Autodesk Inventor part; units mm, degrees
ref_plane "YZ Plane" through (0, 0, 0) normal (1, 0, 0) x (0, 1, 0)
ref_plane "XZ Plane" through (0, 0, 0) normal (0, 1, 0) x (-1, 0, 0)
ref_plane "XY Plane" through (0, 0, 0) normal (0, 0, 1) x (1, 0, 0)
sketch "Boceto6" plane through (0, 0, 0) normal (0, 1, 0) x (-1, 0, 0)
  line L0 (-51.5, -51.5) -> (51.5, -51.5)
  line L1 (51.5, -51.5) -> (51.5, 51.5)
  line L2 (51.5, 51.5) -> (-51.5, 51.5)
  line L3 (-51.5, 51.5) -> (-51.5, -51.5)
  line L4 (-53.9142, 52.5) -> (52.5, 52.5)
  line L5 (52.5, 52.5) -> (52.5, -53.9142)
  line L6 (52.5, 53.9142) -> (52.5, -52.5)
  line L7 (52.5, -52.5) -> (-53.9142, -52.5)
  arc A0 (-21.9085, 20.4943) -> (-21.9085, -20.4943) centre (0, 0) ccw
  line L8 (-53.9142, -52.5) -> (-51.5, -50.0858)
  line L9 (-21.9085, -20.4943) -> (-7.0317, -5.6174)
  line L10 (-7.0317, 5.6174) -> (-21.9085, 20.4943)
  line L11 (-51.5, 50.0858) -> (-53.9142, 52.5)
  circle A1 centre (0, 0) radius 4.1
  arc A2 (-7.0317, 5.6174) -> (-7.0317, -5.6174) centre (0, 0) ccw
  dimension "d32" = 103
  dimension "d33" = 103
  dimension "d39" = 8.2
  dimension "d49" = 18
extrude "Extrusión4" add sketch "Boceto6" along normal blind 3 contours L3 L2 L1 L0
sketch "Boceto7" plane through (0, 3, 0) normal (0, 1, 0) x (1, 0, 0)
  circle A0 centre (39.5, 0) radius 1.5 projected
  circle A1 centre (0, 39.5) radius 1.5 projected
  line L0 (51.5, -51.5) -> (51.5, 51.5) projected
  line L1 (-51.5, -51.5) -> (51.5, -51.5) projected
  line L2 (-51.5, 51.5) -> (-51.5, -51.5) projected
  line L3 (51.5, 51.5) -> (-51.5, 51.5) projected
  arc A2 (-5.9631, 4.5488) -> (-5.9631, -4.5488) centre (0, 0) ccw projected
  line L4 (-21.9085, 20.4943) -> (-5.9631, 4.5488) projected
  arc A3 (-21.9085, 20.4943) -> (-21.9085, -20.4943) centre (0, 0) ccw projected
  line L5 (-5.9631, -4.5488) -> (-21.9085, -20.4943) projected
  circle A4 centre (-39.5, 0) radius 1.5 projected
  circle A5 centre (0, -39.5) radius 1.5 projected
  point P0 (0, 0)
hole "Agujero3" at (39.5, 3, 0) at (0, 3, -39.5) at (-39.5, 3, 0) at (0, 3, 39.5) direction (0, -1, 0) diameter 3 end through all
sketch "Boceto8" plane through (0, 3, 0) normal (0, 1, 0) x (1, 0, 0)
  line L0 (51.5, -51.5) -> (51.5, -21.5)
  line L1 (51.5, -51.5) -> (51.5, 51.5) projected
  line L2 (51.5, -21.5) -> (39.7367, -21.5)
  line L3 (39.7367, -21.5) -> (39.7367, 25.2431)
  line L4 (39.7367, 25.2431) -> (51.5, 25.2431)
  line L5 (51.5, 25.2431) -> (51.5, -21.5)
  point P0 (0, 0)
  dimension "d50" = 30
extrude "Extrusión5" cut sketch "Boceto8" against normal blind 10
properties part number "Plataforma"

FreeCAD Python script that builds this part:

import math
import FreeCAD as App
import Part
import Sketcher
from FreeCAD import Vector
Q = App.Units.Quantity


def add_polygon(sketch, points):
    """Adds a closed chain of lines whose ends are joined by coincident constraints."""
    first, n = sketch.GeometryCount, len(points)
    for a, b in zip(points, points[1:] + points[:1]):
        sketch.addGeometry(Part.LineSegment(App.Vector(*a, 0), App.Vector(*b, 0)), False)
    for i in range(n):
        sketch.addConstraint(Sketcher.Constraint("Coincident", first + i, 2, first + (i + 1) % n, 1))

doc = App.newDocument("Part")
params = doc.addObject("Spreadsheet::Sheet", "Params")
for row, (alias, value) in enumerate([
    ("sketch1_radius", "9 mm"),
    ("sketch1_diameter", "8.2 mm"),
    ("sketch1_width", "103 mm"),
    ("sketch1_radius2", "30 mm"),
    ("pad1_length", "3 mm"),
    ("sketch2_diameter", "3 mm"),
    ("hole_diameter", "3 mm"),
    ("pocket1_length", "10 mm"),
], start=1):
    params.set(f"A{row}", alias)
    params.set(f"B{row}", "=" + value)
    params.setAlias(f"B{row}", alias)

body = doc.addObject("PartDesign::Body", "Body")

# Sketch on XZ plane
sketch1 = body.newObject("Sketcher::SketchObject", "Sketch")
sketch1.AttachmentSupport = (doc.getObject("XZ_Plane"), [""])
sketch1.MapMode = "FlatFace"
add_polygon(sketch1, [(51.5, 51.5), (51.5, -51.5), (-51.5, -51.5), (-51.5, 51.5)])  # lines 0-3
sketch1.addGeometry(Part.ArcOfCircle(Part.Circle(Vector(0, 0, 0), Vector(0, 0, 1), 30), math.radians(-43), math.radians(43)), False)  # 4
sketch1.addGeometry(Part.LineSegment(Vector(21.9, 20.5, 0), Vector(7, 5.6, 0)), False)  # 5
sketch1.addGeometry(Part.ArcOfCircle(Part.Circle(Vector(0, 0, 0), Vector(0, 0, 1), 9), math.radians(-39), math.radians(39)), False)  # 6
sketch1.addGeometry(Part.LineSegment(Vector(7, -5.6, 0), Vector(21.9, -20.5, 0)), False)  # 7
sketch1.addGeometry(Part.Circle(Vector(0, 0, 0), Vector(0, 0, 1), 4.1), False)  # 8
sketch1.addConstraint([
    Sketcher.Constraint("Coincident", 4, 2, 5, 1),
    Sketcher.Constraint("Coincident", 5, 2, 6, 2),
    Sketcher.Constraint("Coincident", 6, 1, 7, 1),
    Sketcher.Constraint("Coincident", 7, 2, 4, 1),
    Sketcher.Constraint("Vertical", 0),
    Sketcher.Constraint("Horizontal", 1),
    Sketcher.Constraint("Vertical", 2),
    Sketcher.Constraint("Horizontal", 3),
    Sketcher.Constraint("Coincident", 4, 3, -1, 1),
    Sketcher.Constraint("Coincident", 6, 3, -1, 1),
    Sketcher.Constraint("Coincident", 8, 3, -1, 1),
    Sketcher.Constraint("Symmetric", 0, 2, 2, 2, -1, 1),
    Sketcher.Constraint("Perpendicular", 5, 7),
    Sketcher.Constraint("Vertical", 5, 2, 6, 1),
    Sketcher.Constraint("Vertical", 4, 2, 7, 2),
    Sketcher.Constraint("Equal", 3, 0),
    Sketcher.Constraint("Radius", 6, Q("9 mm")),
    Sketcher.Constraint("Diameter", 8, Q("8.2 mm")),
    Sketcher.Constraint("DistanceX", 1, 2, 1, 1, Q("103 mm")),
    Sketcher.Constraint("Radius", 4, Q("30 mm")),
    Sketcher.Constraint("Distance", 5, Q("21.039 mm")),
])
sketch1.setExpression("Constraints[20]", "Params.sketch1_radius")
sketch1.setExpression("Constraints[21]", "Params.sketch1_diameter")
sketch1.setExpression("Constraints[22]", "Params.sketch1_width")
sketch1.setExpression("Constraints[23]", "Params.sketch1_radius2")
pad1 = body.newObject("PartDesign::Pad", "Pad")
pad1.Profile = sketch1
pad1.setExpression("Length", "Params.pad1_length")
pad1.Reversed = True

# Sketch on XZ plane
sketch2 = body.newObject("Sketcher::SketchObject", "Sketch001")
sketch2.AttachmentSupport = (doc.getObject("XZ_Plane"), [""])
sketch2.MapMode = "FlatFace"
sketch2.AttachmentOffset = App.Placement(Vector(0, 0, -3), App.Rotation())
sketch2.addGeometry([
    Part.Circle(Vector(39.5, 0, 0), Vector(0, 0, 1), 1.5),
    Part.Circle(Vector(0, -39.5, 0), Vector(0, 0, 1), 1.5),
    Part.Circle(Vector(-39.5, 0, 0), Vector(0, 0, 1), 1.5),
    Part.Circle(Vector(0, 39.5, 0), Vector(0, 0, 1), 1.5),
], False)
sketch2.addConstraint([
    Sketcher.Constraint("Equal", 0, 1),
    Sketcher.Constraint("Equal", 1, 2),
    Sketcher.Constraint("Equal", 2, 3),
    Sketcher.Constraint("Symmetric", 0, 3, 2, 3, -1, 1),
    Sketcher.Constraint("Symmetric", 1, 3, 3, 3, -1, 1),
    Sketcher.Constraint("PointOnObject", 0, 3, -1),
    Sketcher.Constraint("PointOnObject", 1, 3, -2),
    Sketcher.Constraint("Diameter", 0, Q("3 mm")),
    Sketcher.Constraint("DistanceX", 2, 3, 0, 3, Q("79 mm")),
    Sketcher.Constraint("DistanceY", 1, 3, 3, 3, Q("79 mm")),
])
sketch2.setExpression("Constraints[7]", "Params.sketch2_diameter")
doc.recompute()
hole = body.newObject("PartDesign::Hole", "Hole")
hole.Profile = sketch2
hole.ThreadType = "None"
hole.setExpression("Diameter", "Params.hole_diameter")
hole.DepthType = "ThroughAll"
hole.Reversed = True

# Sketch on XZ plane
sketch3 = body.newObject("Sketcher::SketchObject", "Sketch002")
sketch3.AttachmentSupport = (doc.getObject("XZ_Plane"), [""])
sketch3.MapMode = "FlatFace"
sketch3.AttachmentOffset = App.Placement(Vector(0, 0, -3), App.Rotation())
add_polygon(sketch3, [(40, 22), (52, 22), (52, -25), (40, -25)])  # lines 0-3
sketch3.addConstraint([
    Sketcher.Constraint("Horizontal", 0),
    Sketcher.Constraint("Vertical", 1),
    Sketcher.Constraint("Horizontal", 2),
    Sketcher.Constraint("Vertical", 3),
    Sketcher.Constraint("DistanceX", -1, 1, 0, 2, Q("51.5 mm")),
    Sketcher.Constraint("DistanceY", -1, 1, 0, 2, Q("21.5 mm")),
    Sketcher.Constraint("DistanceY", 1, 2, 1, 1, Q("46.743 mm")),
    Sketcher.Constraint("DistanceX", 0, 1, 0, 2, Q("11.7633 mm")),
])
pocket1 = body.newObject("PartDesign::Pocket", "Pocket")
pocket1.Profile = sketch3
pocket1.setExpression("Length", "Params.pocket1_length")
pocket1.Reversed = True

doc.recompute()
